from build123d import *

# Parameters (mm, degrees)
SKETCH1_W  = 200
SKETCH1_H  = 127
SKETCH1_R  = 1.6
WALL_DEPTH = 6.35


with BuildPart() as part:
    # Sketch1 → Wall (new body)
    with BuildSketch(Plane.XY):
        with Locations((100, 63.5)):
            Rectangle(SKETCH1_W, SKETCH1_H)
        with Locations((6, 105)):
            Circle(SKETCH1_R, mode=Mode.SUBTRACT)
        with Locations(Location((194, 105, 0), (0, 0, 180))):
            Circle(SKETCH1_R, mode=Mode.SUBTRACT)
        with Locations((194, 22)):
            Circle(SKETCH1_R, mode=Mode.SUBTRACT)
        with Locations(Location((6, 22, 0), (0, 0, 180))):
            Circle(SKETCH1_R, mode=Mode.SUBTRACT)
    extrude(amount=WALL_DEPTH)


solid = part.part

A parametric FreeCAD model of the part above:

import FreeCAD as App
import Part
import Sketcher
from FreeCAD import Vector
Q = App.Units.Quantity

doc = App.newDocument("Part")
params = doc.addObject("Spreadsheet::Sheet", "Params")
for row, (alias, value) in enumerate([
    ("sketch1_diameter", "3.2 mm"),
    ("sketch1_width", "200 mm"),
    ("sketch1_height", "127 mm"),
    ("pad1_length", "6.35 mm"),
], start=1):
    params.set(f"A{row}", alias)
    params.set(f"B{row}", "=" + value)
    params.setAlias(f"B{row}", alias)

body = doc.addObject("PartDesign::Body", "Body")

sketch1 = doc.addObject("Sketcher::SketchObject", "Sketch")
body.addObject(sketch1)
sketch1.AttachmentSupport = (doc.XY_Plane, [""])
sketch1.MapMode = "FlatFace"
sketch1.addGeometry([
    Part.LineSegment(Vector(0, 127, 0), Vector(0, 0, 0)),
    Part.LineSegment(Vector(0, 0, 0), Vector(200, 0, 0)),
    Part.LineSegment(Vector(200, 0, 0), Vector(200, 127, 0)),
    Part.LineSegment(Vector(200, 127, 0), Vector(0, 127, 0)),
    Part.Circle(Vector(6, 22, 0), Vector(0, 0, 1), 1.6),
    Part.Circle(Vector(194, 22, 0), Vector(0, 0, 1), 1.6),
    Part.Circle(Vector(6, 105, 0), Vector(0, 0, 1), 1.6),
    Part.Circle(Vector(194, 105, 0), Vector(0, 0, 1), 1.6),
], False)
sketch1.addConstraint([
    Sketcher.Constraint("Coincident", 0, 2, 1, 1),
    Sketcher.Constraint("Coincident", 1, 2, 2, 1),
    Sketcher.Constraint("Coincident", 2, 2, 3, 1),
    Sketcher.Constraint("Coincident", 3, 2, 0, 1),
    Sketcher.Constraint("Vertical", 0),
    Sketcher.Constraint("Horizontal", 1),
    Sketcher.Constraint("Vertical", 2),
    Sketcher.Constraint("Horizontal", 3),
    Sketcher.Constraint("Coincident", 0, 2, -1, 1),
    Sketcher.Constraint("Equal", 4, 5),
    Sketcher.Constraint("Equal", 5, 6),
    Sketcher.Constraint("Equal", 6, 7),
    Sketcher.Constraint("Horizontal", 4, 3, 5, 3),
    Sketcher.Constraint("Horizontal", 6, 3, 7, 3),
    Sketcher.Constraint("Vertical", 4, 3, 6, 3),
    Sketcher.Constraint("Vertical", 5, 3, 7, 3),
    Sketcher.Constraint("Diameter", 4, Q("3.2 mm")),
    Sketcher.Constraint("DistanceX", 1, 1, 1, 2, Q("200 mm")),
    Sketcher.Constraint("DistanceY", 0, 2, 0, 1, Q("127 mm")),
    Sketcher.Constraint("DistanceX", -1, 1, 4, 3, Q("6 mm")),
    Sketcher.Constraint("DistanceY", -1, 1, 4, 3, Q("22 mm")),
    Sketcher.Constraint("DistanceX", -1, 1, 5, 3, Q("194 mm")),
    Sketcher.Constraint("DistanceY", -1, 1, 6, 3, Q("105 mm")),
])
sketch1.setExpression("Constraints[16]", "Params.sketch1_diameter")
sketch1.setExpression("Constraints[17]", "Params.sketch1_width")
sketch1.setExpression("Constraints[18]", "Params.sketch1_height")
pad1 = doc.addObject("PartDesign::Pad", "Pad")
body.addObject(pad1)
pad1.Profile = sketch1
pad1.setExpression("Length", "Params.pad1_length")

doc.recompute()
